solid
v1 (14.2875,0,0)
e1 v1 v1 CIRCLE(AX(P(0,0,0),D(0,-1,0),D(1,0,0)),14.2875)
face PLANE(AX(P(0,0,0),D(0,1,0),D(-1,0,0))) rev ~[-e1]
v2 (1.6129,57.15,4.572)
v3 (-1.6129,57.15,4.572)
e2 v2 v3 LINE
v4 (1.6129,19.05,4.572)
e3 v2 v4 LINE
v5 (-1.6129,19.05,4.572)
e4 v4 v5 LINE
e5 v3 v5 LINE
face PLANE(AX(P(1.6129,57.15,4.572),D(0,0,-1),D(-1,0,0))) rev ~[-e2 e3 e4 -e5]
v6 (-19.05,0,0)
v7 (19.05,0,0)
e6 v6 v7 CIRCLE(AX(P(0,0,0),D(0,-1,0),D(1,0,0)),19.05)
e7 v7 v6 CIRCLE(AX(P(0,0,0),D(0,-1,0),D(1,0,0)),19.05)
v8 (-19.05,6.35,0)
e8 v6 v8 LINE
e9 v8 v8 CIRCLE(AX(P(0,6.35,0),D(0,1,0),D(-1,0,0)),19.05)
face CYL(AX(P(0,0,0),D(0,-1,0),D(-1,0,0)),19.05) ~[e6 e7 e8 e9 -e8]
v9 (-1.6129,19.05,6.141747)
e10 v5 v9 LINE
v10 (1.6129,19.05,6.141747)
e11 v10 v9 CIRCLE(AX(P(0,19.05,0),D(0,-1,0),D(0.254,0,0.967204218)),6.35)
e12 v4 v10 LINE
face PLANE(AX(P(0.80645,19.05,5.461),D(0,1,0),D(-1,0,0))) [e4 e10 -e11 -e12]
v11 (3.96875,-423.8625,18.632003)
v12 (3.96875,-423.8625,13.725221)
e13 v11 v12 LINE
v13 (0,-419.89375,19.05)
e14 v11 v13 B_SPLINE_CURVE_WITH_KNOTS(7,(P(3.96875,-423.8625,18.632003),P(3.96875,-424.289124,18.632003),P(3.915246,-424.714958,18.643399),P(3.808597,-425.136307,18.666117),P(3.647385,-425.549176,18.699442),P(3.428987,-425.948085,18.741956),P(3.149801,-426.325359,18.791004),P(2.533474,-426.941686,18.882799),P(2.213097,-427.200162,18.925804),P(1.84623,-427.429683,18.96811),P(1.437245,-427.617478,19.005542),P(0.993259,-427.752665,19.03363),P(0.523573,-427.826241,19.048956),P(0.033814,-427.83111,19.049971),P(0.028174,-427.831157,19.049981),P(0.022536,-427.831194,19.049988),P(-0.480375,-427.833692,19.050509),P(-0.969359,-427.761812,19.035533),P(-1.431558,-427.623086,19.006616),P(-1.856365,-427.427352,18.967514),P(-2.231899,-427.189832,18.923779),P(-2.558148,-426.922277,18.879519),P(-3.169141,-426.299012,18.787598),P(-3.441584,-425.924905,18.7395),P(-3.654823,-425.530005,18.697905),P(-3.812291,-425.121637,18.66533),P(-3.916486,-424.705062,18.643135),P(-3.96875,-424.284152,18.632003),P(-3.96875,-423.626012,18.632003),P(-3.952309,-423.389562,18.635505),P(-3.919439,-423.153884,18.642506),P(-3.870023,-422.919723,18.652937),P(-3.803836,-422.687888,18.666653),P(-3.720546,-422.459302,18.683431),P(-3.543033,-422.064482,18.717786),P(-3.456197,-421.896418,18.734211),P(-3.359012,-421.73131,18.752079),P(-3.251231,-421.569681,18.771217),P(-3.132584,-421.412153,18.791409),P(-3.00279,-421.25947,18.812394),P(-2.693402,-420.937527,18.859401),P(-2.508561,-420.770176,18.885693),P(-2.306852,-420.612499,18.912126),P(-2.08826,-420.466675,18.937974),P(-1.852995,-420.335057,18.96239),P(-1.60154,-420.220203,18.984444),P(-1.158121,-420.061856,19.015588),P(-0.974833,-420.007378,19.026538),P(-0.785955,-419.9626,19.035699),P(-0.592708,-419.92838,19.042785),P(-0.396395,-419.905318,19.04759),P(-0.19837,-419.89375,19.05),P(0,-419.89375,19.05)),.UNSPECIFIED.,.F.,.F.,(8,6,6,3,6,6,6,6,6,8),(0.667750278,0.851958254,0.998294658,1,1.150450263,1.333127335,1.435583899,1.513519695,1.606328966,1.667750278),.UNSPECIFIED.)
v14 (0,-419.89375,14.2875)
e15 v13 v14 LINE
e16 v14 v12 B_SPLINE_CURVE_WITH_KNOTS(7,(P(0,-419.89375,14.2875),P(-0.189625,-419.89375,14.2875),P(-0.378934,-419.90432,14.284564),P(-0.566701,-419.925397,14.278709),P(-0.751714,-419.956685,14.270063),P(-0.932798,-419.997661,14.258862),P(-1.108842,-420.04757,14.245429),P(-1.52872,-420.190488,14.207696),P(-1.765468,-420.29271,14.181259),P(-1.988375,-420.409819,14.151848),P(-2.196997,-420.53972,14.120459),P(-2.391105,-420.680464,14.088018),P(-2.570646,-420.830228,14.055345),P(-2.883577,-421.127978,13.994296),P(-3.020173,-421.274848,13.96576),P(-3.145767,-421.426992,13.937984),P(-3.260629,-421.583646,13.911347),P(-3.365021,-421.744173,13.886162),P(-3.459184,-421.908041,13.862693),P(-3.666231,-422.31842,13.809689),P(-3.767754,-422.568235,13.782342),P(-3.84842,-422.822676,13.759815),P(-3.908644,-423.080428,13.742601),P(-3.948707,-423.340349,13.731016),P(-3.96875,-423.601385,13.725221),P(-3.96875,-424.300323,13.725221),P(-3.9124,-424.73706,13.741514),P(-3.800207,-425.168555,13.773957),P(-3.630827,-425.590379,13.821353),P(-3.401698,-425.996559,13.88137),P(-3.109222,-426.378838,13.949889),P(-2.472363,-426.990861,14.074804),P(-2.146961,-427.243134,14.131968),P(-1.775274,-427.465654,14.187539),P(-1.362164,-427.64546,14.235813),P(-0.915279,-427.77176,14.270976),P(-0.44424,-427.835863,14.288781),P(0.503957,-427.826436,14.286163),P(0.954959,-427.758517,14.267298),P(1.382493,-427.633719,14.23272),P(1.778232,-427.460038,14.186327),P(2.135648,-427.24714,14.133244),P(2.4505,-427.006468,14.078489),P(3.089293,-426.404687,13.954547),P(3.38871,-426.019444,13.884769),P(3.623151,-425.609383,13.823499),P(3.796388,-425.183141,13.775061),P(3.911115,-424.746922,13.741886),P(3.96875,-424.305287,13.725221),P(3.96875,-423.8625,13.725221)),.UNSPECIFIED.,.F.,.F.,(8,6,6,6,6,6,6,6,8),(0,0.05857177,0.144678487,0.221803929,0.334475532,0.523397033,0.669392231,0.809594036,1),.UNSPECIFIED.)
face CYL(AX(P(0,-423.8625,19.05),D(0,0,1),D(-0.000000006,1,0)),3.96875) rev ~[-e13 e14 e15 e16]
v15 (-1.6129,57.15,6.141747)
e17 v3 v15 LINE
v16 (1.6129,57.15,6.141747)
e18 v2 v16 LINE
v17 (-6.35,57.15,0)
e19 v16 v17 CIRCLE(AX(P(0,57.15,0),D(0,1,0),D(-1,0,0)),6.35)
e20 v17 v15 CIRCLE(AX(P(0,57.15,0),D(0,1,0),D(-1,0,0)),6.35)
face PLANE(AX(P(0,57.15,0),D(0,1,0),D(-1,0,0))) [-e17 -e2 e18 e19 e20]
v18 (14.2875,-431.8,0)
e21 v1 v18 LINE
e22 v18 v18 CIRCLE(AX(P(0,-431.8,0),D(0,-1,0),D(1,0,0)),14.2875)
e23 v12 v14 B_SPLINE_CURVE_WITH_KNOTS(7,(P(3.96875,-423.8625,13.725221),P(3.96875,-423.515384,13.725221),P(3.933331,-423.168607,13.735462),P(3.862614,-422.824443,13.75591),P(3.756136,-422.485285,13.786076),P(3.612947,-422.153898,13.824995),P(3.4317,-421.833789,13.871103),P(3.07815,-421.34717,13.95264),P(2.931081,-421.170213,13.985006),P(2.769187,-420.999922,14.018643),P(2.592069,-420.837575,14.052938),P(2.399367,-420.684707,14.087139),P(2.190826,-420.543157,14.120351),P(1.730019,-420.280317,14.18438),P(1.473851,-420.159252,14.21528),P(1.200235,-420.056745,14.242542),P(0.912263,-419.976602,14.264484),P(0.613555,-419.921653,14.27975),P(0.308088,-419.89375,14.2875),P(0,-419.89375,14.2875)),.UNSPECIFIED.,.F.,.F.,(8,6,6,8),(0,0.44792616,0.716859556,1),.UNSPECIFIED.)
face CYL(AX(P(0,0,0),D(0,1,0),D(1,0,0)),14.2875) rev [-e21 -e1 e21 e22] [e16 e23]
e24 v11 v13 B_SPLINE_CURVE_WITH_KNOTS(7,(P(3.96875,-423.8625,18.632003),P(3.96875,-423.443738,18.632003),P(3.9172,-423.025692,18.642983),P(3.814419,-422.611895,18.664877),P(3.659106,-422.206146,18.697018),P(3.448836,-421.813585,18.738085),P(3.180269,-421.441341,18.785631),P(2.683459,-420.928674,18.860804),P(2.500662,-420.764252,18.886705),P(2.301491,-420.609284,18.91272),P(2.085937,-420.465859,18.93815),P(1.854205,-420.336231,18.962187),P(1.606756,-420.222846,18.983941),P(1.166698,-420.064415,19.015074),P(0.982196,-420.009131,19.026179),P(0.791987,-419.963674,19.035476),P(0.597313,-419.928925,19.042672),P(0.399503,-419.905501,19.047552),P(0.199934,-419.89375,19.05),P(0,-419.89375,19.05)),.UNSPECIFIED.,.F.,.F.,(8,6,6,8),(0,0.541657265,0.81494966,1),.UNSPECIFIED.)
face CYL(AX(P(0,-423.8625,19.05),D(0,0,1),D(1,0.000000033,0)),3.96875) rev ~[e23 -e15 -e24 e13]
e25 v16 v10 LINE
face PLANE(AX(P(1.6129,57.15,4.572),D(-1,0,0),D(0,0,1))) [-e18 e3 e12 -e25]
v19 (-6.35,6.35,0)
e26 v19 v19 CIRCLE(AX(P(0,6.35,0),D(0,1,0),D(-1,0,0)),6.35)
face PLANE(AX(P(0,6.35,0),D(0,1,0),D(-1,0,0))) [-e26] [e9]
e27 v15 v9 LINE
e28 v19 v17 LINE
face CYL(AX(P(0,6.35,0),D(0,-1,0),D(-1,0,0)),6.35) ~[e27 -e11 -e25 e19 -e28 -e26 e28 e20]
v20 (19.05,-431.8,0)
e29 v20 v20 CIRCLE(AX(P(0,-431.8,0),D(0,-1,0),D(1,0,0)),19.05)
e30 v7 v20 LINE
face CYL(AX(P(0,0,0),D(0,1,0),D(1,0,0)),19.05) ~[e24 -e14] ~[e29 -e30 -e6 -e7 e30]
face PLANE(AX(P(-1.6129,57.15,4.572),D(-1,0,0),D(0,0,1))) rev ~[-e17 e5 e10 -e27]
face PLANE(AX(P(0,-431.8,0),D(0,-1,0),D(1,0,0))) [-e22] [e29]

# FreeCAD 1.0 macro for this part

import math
import FreeCAD as App
import Part
import Sketcher

V = App.Vector
Q = App.Units.Quantity


def add_polygon(sketch, points):
    """Adds a closed chain of lines whose ends are joined by coincident constraints."""
    first, n = sketch.GeometryCount, len(points)
    for a, b in zip(points, points[1:] + points[:1]):
        sketch.addGeometry(Part.LineSegment(App.Vector(*a, 0), App.Vector(*b, 0)), False)
    for i in range(n):
        sketch.addConstraint(Sketcher.Constraint("Coincident", first + i, 2, first + (i + 1) % n, 1))

doc = App.newDocument("Part")
params = doc.addObject("Spreadsheet::Sheet", "Params")
for row, (alias, value) in enumerate([
    ("sketch1_diameter", "1.5 in"),
    ("sketch1_diameter2", "1.125 in"),
    ("pad1_length", "17 in"),
    ("sketch2_diameter", "1.5 in"),
    ("pad2_length", "0.25 in"),
    ("sketch3_diameter", "0.5 in"),
    ("pad3_length", "2 in"),
    ("sketch4_height", "0.07 in"),
    ("sketch4_width", "0.127 in"),
    ("pocket1_length", "1.5 in"),
    ("sketch5_radius", "0.15625 in"),
    ("pocket2_length", "0.375 in"),
], start=1):
    params.set(f"A{row}", alias)
    params.set(f"B{row}", "=" + value)
    params.setAlias(f"B{row}", alias)

body = doc.addObject("PartDesign::Body", "Body")

# Sketch on XZ plane
sketch1 = body.newObject("Sketcher::SketchObject", "Sketch")
sketch1.AttachmentSupport = (doc.getObject("XZ_Plane"), [""])
sketch1.MapMode = "FlatFace"
sketch1.addGeometry([
    Part.Circle(V(0, 0, 0), V(0, 0, 1), 19),
    Part.Circle(V(0, 0, 0), V(0, 0, 1), 14),
], False)
sketch1.addConstraint([
    Sketcher.Constraint("Coincident", 0, 3, -1, 1),
    Sketcher.Constraint("Coincident", 1, 3, -1, 1),
    Sketcher.Constraint("Diameter", 0, Q("1.5 in")),
    Sketcher.Constraint("Diameter", 1, Q("1.125 in")),
])
sketch1.setExpression("Constraints[2]", "Params.sketch1_diameter")
sketch1.setExpression("Constraints[3]", "Params.sketch1_diameter2")
pad1 = body.newObject("PartDesign::Pad", "Pad")
pad1.Profile = sketch1
pad1.setExpression("Length", "Params.pad1_length")

# Sketch on XZ plane
sketch2 = body.newObject("Sketcher::SketchObject", "Sketch001")
sketch2.AttachmentSupport = (doc.getObject("XZ_Plane"), [""])
sketch2.MapMode = "FlatFace"
sketch2.addGeometry(Part.Circle(V(0, 0, 0), V(0, 0, 1), 19), False)
sketch2.addConstraint([
    Sketcher.Constraint("Coincident", 0, 3, -1, 1),
    Sketcher.Constraint("Diameter", 0, Q("1.5 in")),
])
sketch2.setExpression("Constraints[1]", "Params.sketch2_diameter")
pad2 = body.newObject("PartDesign::Pad", "Pad001")
pad2.Profile = sketch2
pad2.setExpression("Length", "Params.pad2_length")
pad2.Reversed = True

# Sketch on XZ plane
sketch3 = body.newObject("Sketcher::SketchObject", "Sketch002")
sketch3.AttachmentSupport = (doc.getObject("XZ_Plane"), [""])
sketch3.MapMode = "FlatFace"
sketch3.AttachmentOffset = App.Placement(V(0, 0, -0.25 * 25.4), App.Rotation())
sketch3.addGeometry(Part.Circle(V(0, 0, 0), V(0, 0, 1), 6), False)
sketch3.addConstraint([
    Sketcher.Constraint("Coincident", 0, 3, -1, 1),
    Sketcher.Constraint("Diameter", 0, Q("0.5 in")),
])
sketch3.setExpression("Constraints[1]", "Params.sketch3_diameter")
pad3 = body.newObject("PartDesign::Pad", "Pad002")
pad3.Profile = sketch3
pad3.setExpression("Length", "Params.pad3_length")
pad3.Reversed = True

# Sketch on XZ plane
sketch4 = body.newObject("Sketcher::SketchObject", "Sketch003")
sketch4.AttachmentSupport = (doc.getObject("XZ_Plane"), [""])
sketch4.MapMode = "FlatFace"
sketch4.AttachmentOffset = App.Placement(V(0, 0, -2.25 * 25.4), App.Rotation())
add_polygon(sketch4, [(1.6, 6.3), (1.6, 4.6), (-1.6, 4.6), (-1.6, 6.3)])  # lines 0-3
sketch4.addConstraint([
    Sketcher.Constraint("Vertical", 0),
    Sketcher.Constraint("Horizontal", 1),
    Sketcher.Constraint("Vertical", 2),
    Sketcher.Constraint("Horizontal", 3),
    Sketcher.Constraint("DistanceY", 0, 2, 0, 1, Q("0.07 in")),
    Sketcher.Constraint("DistanceX", 1, 2, 1, 1, Q("0.127 in")),
    Sketcher.Constraint("DistanceY", -1, 1, 0, 2, Q("0.18 in")),
    Sketcher.Constraint("DistanceX", -1, 1, 0, 2, Q("0.0635 in")),
])
sketch4.setExpression("Constraints[8]", "Params.sketch4_height")
sketch4.setExpression("Constraints[9]", "Params.sketch4_width")
pocket1 = body.newObject("PartDesign::Pocket", "Pocket")
pocket1.Profile = sketch4
pocket1.setExpression("Length", "Params.pocket1_length")
pocket1.Reversed = True

# Sketch on XY plane
sketch5 = body.newObject("Sketcher::SketchObject", "Sketch004")
sketch5.AttachmentSupport = (doc.getObject("XY_Plane"), [""])
sketch5.MapMode = "FlatFace"
sketch5.AttachmentOffset = App.Placement(V(0, 0, 0.75 * 25.4), App.Rotation())
sketch5.addGeometry([
    Part.ArcOfCircle(Part.Circle(V(0, -423.9, 0), V(0, 0, 1), 4), math.radians(90), math.radians(360)),
    Part.ArcOfCircle(Part.Circle(V(0, -423.9, 0), V(0, 0, 1), 4), math.radians(0), math.radians(90)),
], False)
sketch5.addConstraint([
    Sketcher.Constraint("Tangent", 0, 1, 1, 2),
    Sketcher.Constraint("Coincident", 1, 1, 0, 2),
    Sketcher.Constraint("PointOnObject", 0, 3, -2),
    Sketcher.Constraint("PointOnObject", 0, 1, -2),
    Sketcher.Constraint("Horizontal", 0, 3, 1, 1),
    Sketcher.Constraint("Radius", 0, Q("0.15625 in")),
    Sketcher.Constraint("DistanceY", 0, 3, -1, 1, Q("16.6875 in")),
])
sketch5.setExpression("Constraints[5]", "Params.sketch5_radius")
pocket2 = body.newObject("PartDesign::Pocket", "Pocket001")
pocket2.Profile = sketch5
pocket2.setExpression("Length", "Params.pocket2_length")

doc.recompute()
